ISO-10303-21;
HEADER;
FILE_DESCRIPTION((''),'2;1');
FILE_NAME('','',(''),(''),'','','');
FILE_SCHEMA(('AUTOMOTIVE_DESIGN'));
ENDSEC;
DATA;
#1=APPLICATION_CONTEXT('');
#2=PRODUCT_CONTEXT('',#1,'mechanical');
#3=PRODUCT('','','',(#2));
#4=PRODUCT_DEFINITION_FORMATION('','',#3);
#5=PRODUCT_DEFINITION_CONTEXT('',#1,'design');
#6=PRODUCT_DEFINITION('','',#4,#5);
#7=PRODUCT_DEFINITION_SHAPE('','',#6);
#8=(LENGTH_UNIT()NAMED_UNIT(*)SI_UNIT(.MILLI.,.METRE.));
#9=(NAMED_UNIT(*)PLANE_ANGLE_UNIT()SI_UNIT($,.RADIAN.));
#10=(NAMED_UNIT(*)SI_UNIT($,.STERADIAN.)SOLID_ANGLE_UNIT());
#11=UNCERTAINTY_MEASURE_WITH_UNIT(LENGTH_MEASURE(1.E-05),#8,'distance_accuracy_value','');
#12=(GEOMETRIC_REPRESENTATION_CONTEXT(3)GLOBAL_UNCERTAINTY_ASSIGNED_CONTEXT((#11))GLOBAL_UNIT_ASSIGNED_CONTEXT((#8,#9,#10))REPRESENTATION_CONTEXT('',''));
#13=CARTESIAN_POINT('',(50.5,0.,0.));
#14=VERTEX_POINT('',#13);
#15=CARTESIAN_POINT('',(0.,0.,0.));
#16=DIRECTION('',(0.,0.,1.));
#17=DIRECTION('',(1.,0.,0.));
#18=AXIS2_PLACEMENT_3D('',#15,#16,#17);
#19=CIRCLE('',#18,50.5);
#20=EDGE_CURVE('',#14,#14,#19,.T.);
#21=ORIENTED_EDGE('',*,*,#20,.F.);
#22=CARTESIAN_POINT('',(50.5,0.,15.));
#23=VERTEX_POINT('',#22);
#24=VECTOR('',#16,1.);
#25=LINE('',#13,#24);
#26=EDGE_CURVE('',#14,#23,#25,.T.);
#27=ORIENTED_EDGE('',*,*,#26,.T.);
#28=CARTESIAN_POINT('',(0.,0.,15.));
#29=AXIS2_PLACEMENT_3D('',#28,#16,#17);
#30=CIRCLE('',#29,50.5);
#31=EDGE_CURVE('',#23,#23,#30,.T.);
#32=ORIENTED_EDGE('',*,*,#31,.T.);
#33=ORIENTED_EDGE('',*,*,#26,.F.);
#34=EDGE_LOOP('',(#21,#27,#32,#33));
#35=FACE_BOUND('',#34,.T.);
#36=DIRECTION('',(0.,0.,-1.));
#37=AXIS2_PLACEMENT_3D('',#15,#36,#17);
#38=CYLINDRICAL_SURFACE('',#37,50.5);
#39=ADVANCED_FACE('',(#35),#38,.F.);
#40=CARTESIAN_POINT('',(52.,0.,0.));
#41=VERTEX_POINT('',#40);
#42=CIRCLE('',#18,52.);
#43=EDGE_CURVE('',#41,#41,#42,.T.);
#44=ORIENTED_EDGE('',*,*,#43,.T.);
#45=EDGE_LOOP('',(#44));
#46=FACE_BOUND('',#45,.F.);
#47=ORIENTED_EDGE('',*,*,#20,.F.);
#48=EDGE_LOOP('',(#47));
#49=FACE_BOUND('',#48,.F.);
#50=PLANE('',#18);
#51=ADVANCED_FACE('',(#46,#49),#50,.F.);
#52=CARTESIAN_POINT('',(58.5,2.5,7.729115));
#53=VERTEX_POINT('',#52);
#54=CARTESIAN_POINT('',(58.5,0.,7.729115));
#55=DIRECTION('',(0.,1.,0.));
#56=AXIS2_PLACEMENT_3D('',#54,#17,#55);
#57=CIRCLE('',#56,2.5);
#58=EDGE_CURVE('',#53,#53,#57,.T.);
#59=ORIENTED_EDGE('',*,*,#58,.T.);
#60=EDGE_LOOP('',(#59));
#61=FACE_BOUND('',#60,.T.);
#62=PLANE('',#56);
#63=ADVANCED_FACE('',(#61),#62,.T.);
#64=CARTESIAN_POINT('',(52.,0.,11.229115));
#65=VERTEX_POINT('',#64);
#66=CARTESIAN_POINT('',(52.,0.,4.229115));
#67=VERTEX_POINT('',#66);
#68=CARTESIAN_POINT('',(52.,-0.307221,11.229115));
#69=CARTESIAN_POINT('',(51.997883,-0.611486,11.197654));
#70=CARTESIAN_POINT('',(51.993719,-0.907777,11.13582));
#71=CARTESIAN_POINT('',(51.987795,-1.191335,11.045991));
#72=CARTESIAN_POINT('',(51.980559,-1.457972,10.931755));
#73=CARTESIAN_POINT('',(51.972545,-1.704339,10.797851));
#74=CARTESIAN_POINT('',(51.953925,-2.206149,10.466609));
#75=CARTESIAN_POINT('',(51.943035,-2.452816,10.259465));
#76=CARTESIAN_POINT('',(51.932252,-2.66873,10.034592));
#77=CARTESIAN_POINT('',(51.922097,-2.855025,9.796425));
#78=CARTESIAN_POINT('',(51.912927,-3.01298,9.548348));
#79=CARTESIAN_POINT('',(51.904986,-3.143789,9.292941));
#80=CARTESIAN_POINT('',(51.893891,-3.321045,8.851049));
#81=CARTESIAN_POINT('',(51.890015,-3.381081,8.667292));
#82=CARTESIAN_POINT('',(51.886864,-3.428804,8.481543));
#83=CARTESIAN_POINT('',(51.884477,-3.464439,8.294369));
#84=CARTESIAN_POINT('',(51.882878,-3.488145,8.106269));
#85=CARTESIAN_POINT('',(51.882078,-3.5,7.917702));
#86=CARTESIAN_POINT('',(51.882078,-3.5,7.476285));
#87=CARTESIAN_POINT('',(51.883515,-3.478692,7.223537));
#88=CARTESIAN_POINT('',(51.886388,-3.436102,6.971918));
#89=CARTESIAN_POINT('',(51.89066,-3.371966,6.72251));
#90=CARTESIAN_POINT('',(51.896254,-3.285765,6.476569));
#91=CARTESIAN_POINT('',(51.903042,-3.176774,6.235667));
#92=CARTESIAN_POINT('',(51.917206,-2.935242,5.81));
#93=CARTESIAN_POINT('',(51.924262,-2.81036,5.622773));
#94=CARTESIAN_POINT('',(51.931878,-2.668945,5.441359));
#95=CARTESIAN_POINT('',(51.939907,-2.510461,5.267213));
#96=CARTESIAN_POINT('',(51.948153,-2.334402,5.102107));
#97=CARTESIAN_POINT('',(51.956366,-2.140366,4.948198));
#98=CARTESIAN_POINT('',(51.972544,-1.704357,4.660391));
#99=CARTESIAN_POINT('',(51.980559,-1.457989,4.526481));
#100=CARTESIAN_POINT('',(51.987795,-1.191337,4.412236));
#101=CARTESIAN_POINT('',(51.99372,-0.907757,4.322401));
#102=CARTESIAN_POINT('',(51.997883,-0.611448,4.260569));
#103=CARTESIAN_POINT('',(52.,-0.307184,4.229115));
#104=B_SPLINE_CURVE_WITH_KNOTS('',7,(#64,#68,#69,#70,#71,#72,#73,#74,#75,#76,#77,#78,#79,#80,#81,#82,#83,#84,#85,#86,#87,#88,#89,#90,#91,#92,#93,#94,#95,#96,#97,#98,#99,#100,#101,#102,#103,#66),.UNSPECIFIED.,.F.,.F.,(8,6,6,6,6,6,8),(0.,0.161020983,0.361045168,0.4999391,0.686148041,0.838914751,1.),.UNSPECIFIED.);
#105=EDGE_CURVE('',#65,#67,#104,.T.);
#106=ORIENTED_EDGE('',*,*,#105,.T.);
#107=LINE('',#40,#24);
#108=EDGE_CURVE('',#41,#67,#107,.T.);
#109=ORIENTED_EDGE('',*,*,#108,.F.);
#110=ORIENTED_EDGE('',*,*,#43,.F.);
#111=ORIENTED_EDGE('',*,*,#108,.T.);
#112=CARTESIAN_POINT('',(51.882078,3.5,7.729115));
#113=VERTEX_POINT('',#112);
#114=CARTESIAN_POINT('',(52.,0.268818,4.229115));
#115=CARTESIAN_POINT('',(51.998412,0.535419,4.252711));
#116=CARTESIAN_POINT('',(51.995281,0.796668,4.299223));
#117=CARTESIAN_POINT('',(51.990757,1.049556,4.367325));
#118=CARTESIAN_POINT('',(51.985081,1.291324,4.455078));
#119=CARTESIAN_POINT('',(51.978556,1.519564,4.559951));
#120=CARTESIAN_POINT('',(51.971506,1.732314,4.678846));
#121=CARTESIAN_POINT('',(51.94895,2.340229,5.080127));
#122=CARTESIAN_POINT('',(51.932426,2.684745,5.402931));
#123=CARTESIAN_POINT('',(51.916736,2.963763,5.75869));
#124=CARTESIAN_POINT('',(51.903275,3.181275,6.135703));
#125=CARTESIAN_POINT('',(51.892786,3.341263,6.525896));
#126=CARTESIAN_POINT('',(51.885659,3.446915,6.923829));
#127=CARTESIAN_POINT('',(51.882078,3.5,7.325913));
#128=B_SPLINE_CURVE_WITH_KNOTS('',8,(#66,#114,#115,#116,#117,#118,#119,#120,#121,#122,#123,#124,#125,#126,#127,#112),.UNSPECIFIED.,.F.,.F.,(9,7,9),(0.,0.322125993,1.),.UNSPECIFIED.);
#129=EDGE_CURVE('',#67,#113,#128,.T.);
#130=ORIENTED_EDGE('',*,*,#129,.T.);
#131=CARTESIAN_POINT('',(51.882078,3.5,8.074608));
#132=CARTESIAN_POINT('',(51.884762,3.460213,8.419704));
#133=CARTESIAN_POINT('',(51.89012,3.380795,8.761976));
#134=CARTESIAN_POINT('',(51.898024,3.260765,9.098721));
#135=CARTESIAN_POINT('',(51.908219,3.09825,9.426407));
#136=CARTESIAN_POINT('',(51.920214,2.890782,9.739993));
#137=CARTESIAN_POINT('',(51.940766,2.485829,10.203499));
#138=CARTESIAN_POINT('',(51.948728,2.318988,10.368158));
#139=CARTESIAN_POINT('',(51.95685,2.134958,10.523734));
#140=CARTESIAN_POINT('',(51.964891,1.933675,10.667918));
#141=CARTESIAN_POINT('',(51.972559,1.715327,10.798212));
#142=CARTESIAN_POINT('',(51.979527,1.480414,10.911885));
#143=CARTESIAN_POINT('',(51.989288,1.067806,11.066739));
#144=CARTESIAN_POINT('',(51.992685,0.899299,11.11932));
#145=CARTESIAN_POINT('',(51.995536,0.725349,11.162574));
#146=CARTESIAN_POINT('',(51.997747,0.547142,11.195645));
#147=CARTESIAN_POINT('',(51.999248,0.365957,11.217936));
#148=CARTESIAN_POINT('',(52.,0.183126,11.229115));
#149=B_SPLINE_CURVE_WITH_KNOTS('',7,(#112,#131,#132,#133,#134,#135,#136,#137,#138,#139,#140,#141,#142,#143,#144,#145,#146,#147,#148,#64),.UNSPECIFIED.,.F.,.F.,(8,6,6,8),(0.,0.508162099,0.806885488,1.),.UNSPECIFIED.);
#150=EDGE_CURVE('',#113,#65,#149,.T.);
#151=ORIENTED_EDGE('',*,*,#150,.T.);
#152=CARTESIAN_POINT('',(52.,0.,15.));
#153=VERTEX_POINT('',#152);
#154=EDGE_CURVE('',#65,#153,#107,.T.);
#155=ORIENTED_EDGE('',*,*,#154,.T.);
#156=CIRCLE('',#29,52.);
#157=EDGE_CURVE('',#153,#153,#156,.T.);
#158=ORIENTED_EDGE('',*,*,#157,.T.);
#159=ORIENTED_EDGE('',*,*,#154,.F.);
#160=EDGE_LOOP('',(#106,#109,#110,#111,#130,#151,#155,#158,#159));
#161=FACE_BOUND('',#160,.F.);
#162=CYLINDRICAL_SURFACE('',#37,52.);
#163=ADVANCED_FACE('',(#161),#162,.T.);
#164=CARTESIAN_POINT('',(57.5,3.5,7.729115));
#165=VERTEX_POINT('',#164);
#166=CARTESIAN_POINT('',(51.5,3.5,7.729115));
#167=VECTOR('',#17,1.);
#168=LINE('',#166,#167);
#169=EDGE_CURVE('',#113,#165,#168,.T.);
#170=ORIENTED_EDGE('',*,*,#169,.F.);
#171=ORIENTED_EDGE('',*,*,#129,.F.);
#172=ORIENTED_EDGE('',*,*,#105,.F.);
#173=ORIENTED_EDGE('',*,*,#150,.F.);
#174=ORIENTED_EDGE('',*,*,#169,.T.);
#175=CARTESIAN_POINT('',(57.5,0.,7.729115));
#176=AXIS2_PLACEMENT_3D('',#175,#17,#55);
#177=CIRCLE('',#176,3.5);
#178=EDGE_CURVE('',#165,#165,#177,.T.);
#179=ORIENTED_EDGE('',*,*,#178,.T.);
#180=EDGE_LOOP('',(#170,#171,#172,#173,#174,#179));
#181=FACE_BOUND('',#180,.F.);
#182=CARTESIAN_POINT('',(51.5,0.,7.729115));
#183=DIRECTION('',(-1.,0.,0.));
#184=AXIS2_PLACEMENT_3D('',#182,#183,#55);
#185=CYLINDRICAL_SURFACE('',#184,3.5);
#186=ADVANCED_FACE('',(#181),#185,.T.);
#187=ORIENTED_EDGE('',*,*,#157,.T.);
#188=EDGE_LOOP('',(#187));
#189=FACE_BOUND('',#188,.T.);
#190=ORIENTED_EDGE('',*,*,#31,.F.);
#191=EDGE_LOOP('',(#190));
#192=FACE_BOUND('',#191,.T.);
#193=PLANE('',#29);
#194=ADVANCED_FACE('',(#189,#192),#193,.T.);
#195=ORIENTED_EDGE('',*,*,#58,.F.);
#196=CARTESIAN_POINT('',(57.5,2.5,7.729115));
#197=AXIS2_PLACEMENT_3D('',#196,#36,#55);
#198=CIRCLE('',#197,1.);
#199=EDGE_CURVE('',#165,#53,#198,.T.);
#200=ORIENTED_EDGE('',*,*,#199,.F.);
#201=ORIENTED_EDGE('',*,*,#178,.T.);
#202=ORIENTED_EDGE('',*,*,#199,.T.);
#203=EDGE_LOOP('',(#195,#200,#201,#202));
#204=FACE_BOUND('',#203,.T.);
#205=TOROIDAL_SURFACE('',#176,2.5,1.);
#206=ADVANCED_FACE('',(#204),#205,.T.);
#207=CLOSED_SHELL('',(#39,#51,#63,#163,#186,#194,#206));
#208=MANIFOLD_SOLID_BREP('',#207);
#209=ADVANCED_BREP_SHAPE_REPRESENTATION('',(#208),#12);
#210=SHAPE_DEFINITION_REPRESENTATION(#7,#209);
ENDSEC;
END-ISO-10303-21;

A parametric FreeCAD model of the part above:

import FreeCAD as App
import Part
import Sketcher

V = App.Vector
Q = App.Units.Quantity


def edges_at(feature, points):
    """Names of the edges that pass closest to the given points."""
    edges = feature.Shape.Edges
    near = lambda p: min(range(len(edges)), key=lambda i: edges[i].distToShape(Part.Vertex(*p))[0])
    return sorted({f"Edge{near(p) + 1}" for p in points})

doc = App.newDocument("Part")
body = doc.addObject("PartDesign::Body", "Body")

sketch1 = doc.addObject("Sketcher::SketchObject", "Sketch")
body.addObject(sketch1)
sketch1.AttachmentSupport = (doc.XY_Plane, [""])
sketch1.MapMode = "FlatFace"
sketch1.addGeometry(Part.Circle(V(0, 0, 0), V(0, 0, 1), 52), False)
sketch1.addGeometry(Part.Circle(V(0, 0, 0), V(0, 0, 1), 50), False)
sketch1.addConstraint(Sketcher.Constraint("Coincident", 0, 3, -1, 1))
sketch1.addConstraint(Sketcher.Constraint("Coincident", 1, 3, -1, 1))
sketch1.addConstraint(Sketcher.Constraint("Diameter", 0, Q("104 mm")))
sketch1.addConstraint(Sketcher.Constraint("Diameter", 1, Q("101 mm")))
pad1 = doc.addObject("PartDesign::Pad", "Pad")
body.addObject(pad1)
pad1.Profile = sketch1
pad1.Length = 15

sketch2 = doc.addObject("Sketcher::SketchObject", "Sketch001")
body.addObject(sketch2)
sketch2.AttachmentSupport = (doc.YZ_Plane, [""])
sketch2.MapMode = "FlatFace"
sketch2.AttachmentOffset = App.Placement(V(0, 0, 51.5), App.Rotation())
sketch2.addGeometry(Part.Circle(V(0, 7.7, 0), V(0, 0, 1), 3.5), False)
sketch2.addConstraint(Sketcher.Constraint("PointOnObject", 0, 3, -2))
sketch2.addConstraint(Sketcher.Constraint("Diameter", 0, Q("7 mm")))
sketch2.addConstraint(Sketcher.Constraint("DistanceY", -1, 1, 0, 3, Q("7.729115 mm")))
pad2 = doc.addObject("PartDesign::Pad", "Pad001")
body.addObject(pad2)
pad2.Profile = sketch2
pad2.Length = 7
doc.recompute()

fillet = doc.addObject("PartDesign::Fillet", "Fillet")
body.addObject(fillet)
fillet.Base = (pad2, edges_at(pad2, [(58.5, -3.5, 7.729)]))
fillet.Radius = 1

doc.recompute()
